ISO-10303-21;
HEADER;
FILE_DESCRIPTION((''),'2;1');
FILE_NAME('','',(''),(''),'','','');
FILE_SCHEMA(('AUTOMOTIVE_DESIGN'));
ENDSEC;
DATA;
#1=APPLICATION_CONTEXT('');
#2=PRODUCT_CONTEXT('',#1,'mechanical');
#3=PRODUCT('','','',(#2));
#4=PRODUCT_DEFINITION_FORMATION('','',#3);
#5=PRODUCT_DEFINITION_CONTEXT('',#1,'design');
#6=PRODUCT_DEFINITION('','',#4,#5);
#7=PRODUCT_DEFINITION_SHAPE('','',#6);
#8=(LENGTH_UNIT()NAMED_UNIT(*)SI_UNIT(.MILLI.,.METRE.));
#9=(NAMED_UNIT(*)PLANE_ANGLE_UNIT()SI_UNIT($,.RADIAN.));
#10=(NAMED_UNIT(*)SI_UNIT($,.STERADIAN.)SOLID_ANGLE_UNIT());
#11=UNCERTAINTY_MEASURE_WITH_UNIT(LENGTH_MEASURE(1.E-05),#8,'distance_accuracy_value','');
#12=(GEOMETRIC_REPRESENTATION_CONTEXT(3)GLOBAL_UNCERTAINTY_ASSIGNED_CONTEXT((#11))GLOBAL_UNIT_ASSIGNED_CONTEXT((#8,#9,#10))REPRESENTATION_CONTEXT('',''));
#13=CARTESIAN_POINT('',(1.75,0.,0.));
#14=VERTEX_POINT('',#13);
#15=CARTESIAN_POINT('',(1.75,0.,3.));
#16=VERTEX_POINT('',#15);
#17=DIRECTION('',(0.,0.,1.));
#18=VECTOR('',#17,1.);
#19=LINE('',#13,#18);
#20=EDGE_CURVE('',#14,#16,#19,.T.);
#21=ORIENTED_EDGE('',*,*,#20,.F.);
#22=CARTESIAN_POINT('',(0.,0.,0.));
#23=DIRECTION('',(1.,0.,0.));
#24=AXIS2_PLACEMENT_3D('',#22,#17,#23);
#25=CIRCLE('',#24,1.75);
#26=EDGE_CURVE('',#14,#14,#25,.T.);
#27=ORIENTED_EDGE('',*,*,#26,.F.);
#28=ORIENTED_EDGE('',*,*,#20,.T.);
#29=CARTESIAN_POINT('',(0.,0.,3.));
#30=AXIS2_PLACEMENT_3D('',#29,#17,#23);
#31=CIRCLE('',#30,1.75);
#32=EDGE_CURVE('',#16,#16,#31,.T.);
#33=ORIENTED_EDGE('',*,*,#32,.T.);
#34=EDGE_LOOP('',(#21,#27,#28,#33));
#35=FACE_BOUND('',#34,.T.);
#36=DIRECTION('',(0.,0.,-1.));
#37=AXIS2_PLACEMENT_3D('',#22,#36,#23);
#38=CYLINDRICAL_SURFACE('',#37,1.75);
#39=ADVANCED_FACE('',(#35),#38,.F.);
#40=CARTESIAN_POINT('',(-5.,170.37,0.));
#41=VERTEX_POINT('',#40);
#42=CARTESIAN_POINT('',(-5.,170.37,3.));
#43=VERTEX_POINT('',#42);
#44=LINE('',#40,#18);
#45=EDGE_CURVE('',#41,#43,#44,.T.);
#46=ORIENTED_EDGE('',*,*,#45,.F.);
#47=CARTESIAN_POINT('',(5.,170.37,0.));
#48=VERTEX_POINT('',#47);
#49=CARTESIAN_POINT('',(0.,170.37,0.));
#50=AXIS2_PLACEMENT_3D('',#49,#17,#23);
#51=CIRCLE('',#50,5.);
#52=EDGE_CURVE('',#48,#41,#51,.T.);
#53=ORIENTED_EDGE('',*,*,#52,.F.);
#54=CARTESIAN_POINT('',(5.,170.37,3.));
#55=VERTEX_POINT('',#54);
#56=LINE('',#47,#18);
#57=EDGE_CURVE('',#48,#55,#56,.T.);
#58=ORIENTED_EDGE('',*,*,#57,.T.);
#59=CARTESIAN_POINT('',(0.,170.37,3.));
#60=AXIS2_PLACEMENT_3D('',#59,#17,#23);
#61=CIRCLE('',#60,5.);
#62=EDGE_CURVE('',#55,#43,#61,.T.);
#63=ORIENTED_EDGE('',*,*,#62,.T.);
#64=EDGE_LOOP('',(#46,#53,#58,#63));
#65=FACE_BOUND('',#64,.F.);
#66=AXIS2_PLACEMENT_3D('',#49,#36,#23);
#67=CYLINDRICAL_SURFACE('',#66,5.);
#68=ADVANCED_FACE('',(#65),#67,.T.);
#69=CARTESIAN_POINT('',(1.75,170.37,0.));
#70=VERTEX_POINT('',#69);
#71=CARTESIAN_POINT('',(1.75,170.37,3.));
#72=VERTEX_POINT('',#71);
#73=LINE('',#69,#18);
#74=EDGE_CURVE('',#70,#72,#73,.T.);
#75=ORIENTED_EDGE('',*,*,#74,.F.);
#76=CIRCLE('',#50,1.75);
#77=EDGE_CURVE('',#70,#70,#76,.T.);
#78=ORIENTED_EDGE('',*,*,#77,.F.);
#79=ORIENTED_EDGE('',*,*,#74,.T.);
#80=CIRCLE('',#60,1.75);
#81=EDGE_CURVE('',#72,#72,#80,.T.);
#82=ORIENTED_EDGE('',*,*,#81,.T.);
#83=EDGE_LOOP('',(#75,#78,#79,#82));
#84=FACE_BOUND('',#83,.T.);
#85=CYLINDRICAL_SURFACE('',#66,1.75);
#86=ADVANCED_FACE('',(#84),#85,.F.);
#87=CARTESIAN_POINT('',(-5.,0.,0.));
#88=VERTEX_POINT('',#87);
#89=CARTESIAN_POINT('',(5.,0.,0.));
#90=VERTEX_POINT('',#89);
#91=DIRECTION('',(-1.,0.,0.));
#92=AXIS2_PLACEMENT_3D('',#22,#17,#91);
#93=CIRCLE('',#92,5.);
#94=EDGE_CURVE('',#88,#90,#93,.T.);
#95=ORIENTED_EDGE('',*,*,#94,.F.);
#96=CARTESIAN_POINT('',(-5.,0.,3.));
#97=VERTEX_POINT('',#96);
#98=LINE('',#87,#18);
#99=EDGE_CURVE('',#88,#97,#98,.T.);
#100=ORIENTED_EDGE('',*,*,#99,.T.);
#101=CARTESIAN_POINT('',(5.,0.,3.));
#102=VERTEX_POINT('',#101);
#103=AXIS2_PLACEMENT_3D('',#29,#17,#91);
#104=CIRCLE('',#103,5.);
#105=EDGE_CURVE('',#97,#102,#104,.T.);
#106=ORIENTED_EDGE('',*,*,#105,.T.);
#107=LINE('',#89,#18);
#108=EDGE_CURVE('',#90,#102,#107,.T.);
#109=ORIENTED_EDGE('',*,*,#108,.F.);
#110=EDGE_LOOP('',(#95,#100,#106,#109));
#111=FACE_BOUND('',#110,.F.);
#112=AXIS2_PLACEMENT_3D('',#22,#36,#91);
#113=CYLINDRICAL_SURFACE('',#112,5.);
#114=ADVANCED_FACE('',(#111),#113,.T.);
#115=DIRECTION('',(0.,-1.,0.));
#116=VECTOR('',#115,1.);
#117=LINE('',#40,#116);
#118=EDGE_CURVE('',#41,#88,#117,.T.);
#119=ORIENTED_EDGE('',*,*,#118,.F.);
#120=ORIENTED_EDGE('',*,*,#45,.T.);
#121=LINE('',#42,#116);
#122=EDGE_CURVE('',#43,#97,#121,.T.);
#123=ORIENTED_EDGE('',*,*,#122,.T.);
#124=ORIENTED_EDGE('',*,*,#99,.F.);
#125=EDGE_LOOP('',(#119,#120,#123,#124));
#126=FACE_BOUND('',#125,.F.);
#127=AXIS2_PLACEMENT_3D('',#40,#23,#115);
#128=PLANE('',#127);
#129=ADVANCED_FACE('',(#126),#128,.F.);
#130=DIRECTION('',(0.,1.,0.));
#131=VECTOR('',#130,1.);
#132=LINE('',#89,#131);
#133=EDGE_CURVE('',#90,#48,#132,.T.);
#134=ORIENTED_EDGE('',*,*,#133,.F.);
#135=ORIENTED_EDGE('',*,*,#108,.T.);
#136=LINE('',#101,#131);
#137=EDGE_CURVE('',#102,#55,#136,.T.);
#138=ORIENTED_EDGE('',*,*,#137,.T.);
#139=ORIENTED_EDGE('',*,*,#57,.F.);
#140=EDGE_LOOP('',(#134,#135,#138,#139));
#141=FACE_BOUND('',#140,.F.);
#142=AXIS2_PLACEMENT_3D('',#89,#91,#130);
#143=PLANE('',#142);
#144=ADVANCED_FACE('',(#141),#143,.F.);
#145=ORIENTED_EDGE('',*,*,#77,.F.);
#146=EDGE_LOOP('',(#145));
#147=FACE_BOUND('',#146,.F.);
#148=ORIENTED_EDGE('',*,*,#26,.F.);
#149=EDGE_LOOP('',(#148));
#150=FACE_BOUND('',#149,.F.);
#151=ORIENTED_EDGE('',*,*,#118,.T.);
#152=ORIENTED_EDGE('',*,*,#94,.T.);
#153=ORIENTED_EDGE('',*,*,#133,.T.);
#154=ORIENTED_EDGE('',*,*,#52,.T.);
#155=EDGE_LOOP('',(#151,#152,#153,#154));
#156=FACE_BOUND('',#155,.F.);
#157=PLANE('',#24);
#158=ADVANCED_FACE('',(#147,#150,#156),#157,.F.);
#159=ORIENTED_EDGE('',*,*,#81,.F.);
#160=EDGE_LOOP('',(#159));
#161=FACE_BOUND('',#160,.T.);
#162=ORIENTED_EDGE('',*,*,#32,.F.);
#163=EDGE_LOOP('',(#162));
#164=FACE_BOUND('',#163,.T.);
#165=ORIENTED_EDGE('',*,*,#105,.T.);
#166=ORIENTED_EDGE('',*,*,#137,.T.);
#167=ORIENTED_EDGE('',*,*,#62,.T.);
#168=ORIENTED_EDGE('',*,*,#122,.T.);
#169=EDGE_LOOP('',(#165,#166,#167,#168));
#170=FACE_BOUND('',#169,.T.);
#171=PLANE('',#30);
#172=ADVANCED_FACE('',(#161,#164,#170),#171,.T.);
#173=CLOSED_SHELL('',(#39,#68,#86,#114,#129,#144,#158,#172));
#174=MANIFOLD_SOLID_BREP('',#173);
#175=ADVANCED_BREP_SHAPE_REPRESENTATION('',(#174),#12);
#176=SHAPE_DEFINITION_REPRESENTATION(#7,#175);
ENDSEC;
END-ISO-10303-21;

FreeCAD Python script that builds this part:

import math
import FreeCAD as App
import Part
import Sketcher

doc = App.newDocument("Part")
body = doc.addObject("PartDesign::Body", "Body")

# Sketch on XY plane
sketch1 = doc.addObject("Sketcher::SketchObject", "Sketch")
body.addObject(sketch1)
sketch1.AttachmentSupport = (doc.XY_Plane, [""])
sketch1.MapMode = "FlatFace"
sketch1.addGeometry([
    Part.ArcOfCircle(Part.Circle(App.Vector(0, 170.37, 0), App.Vector(0, 0, 1), 5), math.radians(0), math.radians(180)),  # 0
    Part.LineSegment(App.Vector(-5, 170.37, 0), App.Vector(-5, 0, 0)),  # 1
    Part.ArcOfCircle(Part.Circle(App.Vector(0, 0, 0), App.Vector(0, 0, 1), 5), math.radians(180), math.radians(360)),  # 2
    Part.LineSegment(App.Vector(5, 0, 0), App.Vector(5, 170.37, 0)),  # 3
    Part.Circle(App.Vector(0, 0, 0), App.Vector(0, 0, 1), 1.75),  # 4
    Part.Circle(App.Vector(0, 170.37, 0), App.Vector(0, 0, 1), 1.75),  # 5
], False)
sketch1.addConstraint([
    Sketcher.Constraint("Tangent", 0, 2, 1, 1),
    Sketcher.Constraint("Tangent", 1, 2, 2, 1),
    Sketcher.Constraint("Tangent", 2, 2, 3, 1),
    Sketcher.Constraint("Tangent", 3, 2, 0, 1),
    Sketcher.Constraint("Vertical", 1),
    Sketcher.Constraint("Vertical", 3),
    Sketcher.Constraint("Coincident", 2, 3, -1, 1),
    Sketcher.Constraint("Coincident", 4, 3, -1, 1),
    Sketcher.Constraint("Coincident", 5, 3, 0, 3),
    Sketcher.Constraint("Equal", 4, 5),
    Sketcher.Constraint("Radius", 0, 5.0),
    Sketcher.Constraint("Diameter", 4, 3.5),
    Sketcher.Constraint("DistanceY", 1, 2, 1, 1, 170.37),
])
pad1 = doc.addObject("PartDesign::Pad", "Pad")
body.addObject(pad1)
pad1.Profile = sketch1
pad1.Length = 3

doc.recompute()
